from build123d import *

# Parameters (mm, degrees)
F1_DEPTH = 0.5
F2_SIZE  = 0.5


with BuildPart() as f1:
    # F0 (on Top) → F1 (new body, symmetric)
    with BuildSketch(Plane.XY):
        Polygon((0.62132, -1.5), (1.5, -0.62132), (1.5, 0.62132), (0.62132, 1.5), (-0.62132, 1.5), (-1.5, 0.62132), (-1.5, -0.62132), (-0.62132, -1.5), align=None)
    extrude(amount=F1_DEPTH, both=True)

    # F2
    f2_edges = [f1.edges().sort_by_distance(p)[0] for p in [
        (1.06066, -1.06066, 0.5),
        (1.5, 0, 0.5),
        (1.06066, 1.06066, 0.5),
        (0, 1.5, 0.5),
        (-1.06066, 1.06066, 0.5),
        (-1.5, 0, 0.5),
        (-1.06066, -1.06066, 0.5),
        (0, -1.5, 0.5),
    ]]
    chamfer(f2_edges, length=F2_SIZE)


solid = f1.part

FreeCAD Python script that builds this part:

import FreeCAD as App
import Part
import Sketcher
Q = App.Units.Quantity


def edges_at(feature, points):
    """Names of the edges that pass closest to the given points."""
    edges = feature.Shape.Edges
    near = lambda p: min(range(len(edges)), key=lambda i: edges[i].distToShape(Part.Vertex(*p))[0])
    return sorted({f"Edge{near(p) + 1}" for p in points})


def add_polygon(sketch, points):
    """Adds a closed chain of lines whose ends are joined by coincident constraints."""
    first, n = sketch.GeometryCount, len(points)
    for a, b in zip(points, points[1:] + points[:1]):
        sketch.addGeometry(Part.LineSegment(App.Vector(*a, 0), App.Vector(*b, 0)), False)
    for i in range(n):
        sketch.addConstraint(Sketcher.Constraint("Coincident", first + i, 2, first + (i + 1) % n, 1))

doc = App.newDocument("Part")
body = doc.addObject("PartDesign::Body", "Body")

# Sketch on XY plane
sketch1 = body.newObject("Sketcher::SketchObject", "Sketch")
sketch1.AttachmentSupport = (doc.getObject("XY_Plane"), [""])
sketch1.MapMode = "FlatFace"
add_polygon(sketch1, [(0.6, -1.5), (1.5, -0.6), (1.5, 0.6), (0.6, 1.5), (-0.6, 1.5), (-1.5, 0.6), (-1.5, -0.6), (-0.6, -1.5)])  # lines 0-7
sketch1.addConstraint(Sketcher.Constraint("Vertical", 1))
sketch1.addConstraint(Sketcher.Constraint("Horizontal", 3))
sketch1.addConstraint(Sketcher.Constraint("Vertical", 5))
sketch1.addConstraint(Sketcher.Constraint("Horizontal", 7))
sketch1.addConstraint(Sketcher.Constraint("Symmetric", 0, 2, 4, 2, -1, 1))
sketch1.addConstraint(Sketcher.Constraint("Symmetric", 2, 2, 6, 2, -1, 1))
sketch1.addConstraint(Sketcher.Constraint("Perpendicular", 0, 2))
sketch1.addConstraint(Sketcher.Constraint("Perpendicular", 2, 4))
sketch1.addConstraint(Sketcher.Constraint("Perpendicular", 4, 6))
sketch1.addConstraint(Sketcher.Constraint("Horizontal", 1, 2, 4, 2))
sketch1.addConstraint(Sketcher.Constraint("Vertical", 3, 2, 6, 2))
sketch1.addConstraint(Sketcher.Constraint("Equal", 7, 1))
sketch1.addConstraint(Sketcher.Constraint("DistanceX", 4, 2, 1, 2, Q("3 mm")))
sketch1.addConstraint(Sketcher.Constraint("DistanceX", 3, 2, 3, 1, Q("1.24264 mm")))
pad1 = body.newObject("PartDesign::Pad", "Pad")
pad1.Profile = sketch1
pad1.Length = 1
pad1.Midplane = True
doc.recompute()

chamfer = body.newObject("PartDesign::Chamfer", "Chamfer")
chamfer.Base = (pad1, edges_at(pad1, [
    (1.061, -1.061, 0.5),
    (1.5, 0, 0.5),
    (1.061, 1.061, 0.5),
    (0, 1.5, 0.5),
    (-1.061, 1.061, 0.5),
    (-1.5, 0, 0.5),
    (-1.061, -1.061, 0.5),
    (0, -1.5, 0.5),
]))
chamfer.Size = 0.5

doc.recompute()
